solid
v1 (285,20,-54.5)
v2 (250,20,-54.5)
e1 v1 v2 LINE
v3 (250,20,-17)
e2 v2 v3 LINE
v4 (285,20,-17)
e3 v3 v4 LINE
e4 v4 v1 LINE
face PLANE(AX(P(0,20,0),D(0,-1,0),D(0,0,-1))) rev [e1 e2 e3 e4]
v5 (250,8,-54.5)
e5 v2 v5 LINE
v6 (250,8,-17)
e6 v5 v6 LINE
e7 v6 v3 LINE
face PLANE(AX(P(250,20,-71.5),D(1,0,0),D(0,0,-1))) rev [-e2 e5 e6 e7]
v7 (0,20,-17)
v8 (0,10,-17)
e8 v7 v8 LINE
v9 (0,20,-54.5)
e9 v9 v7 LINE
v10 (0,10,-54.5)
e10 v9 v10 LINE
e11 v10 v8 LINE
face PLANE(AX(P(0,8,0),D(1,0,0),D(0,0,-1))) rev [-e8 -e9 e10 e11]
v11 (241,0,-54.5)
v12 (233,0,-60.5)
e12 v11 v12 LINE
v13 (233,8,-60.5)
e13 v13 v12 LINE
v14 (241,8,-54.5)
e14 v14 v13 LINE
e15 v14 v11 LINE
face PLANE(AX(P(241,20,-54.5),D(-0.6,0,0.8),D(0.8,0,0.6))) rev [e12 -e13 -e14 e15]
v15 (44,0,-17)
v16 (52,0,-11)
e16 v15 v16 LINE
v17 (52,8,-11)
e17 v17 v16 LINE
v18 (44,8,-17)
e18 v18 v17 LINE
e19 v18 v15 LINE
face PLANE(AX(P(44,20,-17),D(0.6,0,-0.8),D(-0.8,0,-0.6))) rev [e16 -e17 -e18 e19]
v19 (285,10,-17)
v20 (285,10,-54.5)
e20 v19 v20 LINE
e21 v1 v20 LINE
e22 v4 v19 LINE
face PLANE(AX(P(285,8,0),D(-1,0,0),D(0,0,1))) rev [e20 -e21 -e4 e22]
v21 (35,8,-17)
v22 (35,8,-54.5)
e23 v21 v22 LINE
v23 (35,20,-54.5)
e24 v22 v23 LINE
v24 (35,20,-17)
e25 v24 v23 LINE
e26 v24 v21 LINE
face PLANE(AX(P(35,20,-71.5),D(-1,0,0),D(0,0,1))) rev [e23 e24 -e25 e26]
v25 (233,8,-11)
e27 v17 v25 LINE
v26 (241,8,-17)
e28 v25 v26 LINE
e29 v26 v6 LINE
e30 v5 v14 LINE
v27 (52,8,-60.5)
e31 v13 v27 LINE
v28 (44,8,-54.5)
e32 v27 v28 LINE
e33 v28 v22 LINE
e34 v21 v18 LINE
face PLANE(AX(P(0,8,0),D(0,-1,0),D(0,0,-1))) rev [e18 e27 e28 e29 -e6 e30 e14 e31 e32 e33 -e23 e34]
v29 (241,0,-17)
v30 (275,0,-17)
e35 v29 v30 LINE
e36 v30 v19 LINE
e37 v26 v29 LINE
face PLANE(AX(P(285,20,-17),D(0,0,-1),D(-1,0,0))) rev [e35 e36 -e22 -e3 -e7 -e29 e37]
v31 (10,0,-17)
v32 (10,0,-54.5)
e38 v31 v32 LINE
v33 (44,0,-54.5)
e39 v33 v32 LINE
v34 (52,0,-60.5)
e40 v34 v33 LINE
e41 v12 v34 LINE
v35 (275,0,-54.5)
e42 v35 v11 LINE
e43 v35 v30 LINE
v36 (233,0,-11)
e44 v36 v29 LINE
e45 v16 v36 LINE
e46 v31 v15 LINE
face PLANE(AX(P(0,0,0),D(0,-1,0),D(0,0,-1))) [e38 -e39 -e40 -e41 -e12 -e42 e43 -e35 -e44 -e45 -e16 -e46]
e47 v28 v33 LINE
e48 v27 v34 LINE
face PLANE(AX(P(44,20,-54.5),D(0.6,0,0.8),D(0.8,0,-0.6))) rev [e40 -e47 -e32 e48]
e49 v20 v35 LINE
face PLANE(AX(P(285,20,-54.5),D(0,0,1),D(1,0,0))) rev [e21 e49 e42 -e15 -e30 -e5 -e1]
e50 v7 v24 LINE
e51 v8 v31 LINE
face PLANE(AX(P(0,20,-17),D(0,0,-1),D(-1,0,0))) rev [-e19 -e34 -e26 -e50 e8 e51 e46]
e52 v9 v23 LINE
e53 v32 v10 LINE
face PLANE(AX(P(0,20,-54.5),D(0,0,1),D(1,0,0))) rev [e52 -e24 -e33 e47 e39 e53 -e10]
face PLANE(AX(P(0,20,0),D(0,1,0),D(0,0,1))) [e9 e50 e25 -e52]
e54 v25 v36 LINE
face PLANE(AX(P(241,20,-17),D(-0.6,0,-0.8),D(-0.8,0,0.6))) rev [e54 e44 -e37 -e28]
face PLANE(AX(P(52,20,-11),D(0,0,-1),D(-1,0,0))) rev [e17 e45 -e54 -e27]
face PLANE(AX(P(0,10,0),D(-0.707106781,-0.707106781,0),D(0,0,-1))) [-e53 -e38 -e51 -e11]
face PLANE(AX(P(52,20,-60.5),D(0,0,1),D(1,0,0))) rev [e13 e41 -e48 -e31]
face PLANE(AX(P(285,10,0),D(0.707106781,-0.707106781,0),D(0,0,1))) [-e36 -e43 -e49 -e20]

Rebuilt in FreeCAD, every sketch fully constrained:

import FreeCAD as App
import Part
import Sketcher
from FreeCAD import Vector
Q = App.Units.Quantity


def edges_at(feature, points):
    """Names of the edges that pass closest to the given points."""
    edges = feature.Shape.Edges
    near = lambda p: min(range(len(edges)), key=lambda i: edges[i].distToShape(Part.Vertex(*p))[0])
    return sorted({f"Edge{near(p) + 1}" for p in points})

doc = App.newDocument("Part")
body = doc.addObject("PartDesign::Body", "Body")

sketch1 = body.newObject("Sketcher::SketchObject", "Sketch")
sketch1.AttachmentSupport = (doc.getObject("XZ_Plane"), [""])
sketch1.MapMode = "FlatFace"
sketch1.addGeometry([
    Part.LineSegment(Vector(0, -72, 0), Vector(0, 0, 0)),
    Part.LineSegment(Vector(0, 0, 0), Vector(285, 0, 0)),
    Part.LineSegment(Vector(285, 0, 0), Vector(285, -72, 0)),
    Part.LineSegment(Vector(285, -72, 0), Vector(0, -72, 0)),
], False)
sketch1.addConstraint([
    Sketcher.Constraint("Coincident", 0, 2, 1, 1),
    Sketcher.Constraint("Coincident", 1, 2, 2, 1),
    Sketcher.Constraint("Coincident", 2, 2, 3, 1),
    Sketcher.Constraint("Coincident", 3, 2, 0, 1),
    Sketcher.Constraint("Vertical", 0),
    Sketcher.Constraint("Horizontal", 1),
    Sketcher.Constraint("Vertical", 2),
    Sketcher.Constraint("Horizontal", 3),
    Sketcher.Constraint("Coincident", 0, 2, -1, 1),
    Sketcher.Constraint("DistanceX", 1, 1, 1, 2, Q("285 mm")),
    Sketcher.Constraint("DistanceY", 0, 1, 0, 2, Q("71.5 mm")),
])
pad1 = body.newObject("PartDesign::Pad", "Pad")
pad1.Profile = sketch1
pad1.Length = 8
pad1.Reversed = True

sketch2 = body.newObject("Sketcher::SketchObject", "Sketch001")
sketch2.AttachmentSupport = (doc.getObject("XZ_Plane"), [""])
sketch2.MapMode = "FlatFace"
sketch2.AttachmentOffset = App.Placement(Vector(0, 0, -8), App.Rotation())
sketch2.addGeometry([
    Part.LineSegment(Vector(0, -72, 0), Vector(0, 0, 0)),
    Part.LineSegment(Vector(0, 0, 0), Vector(35, 0, 0)),
    Part.LineSegment(Vector(35, 0, 0), Vector(35, -72, 0)),
    Part.LineSegment(Vector(35, -72, 0), Vector(0, -72, 0)),
    Part.LineSegment(Vector(250, -72, 0), Vector(250, 0, 0)),
    Part.LineSegment(Vector(250, 0, 0), Vector(285, 0, 0)),
    Part.LineSegment(Vector(285, 0, 0), Vector(285, -72, 0)),
    Part.LineSegment(Vector(285, -72, 0), Vector(250, -72, 0)),
], False)
sketch2.addConstraint([
    Sketcher.Constraint("Coincident", 0, 2, 1, 1),
    Sketcher.Constraint("Coincident", 1, 2, 2, 1),
    Sketcher.Constraint("Coincident", 2, 2, 3, 1),
    Sketcher.Constraint("Coincident", 3, 2, 0, 1),
    Sketcher.Constraint("Coincident", 4, 2, 5, 1),
    Sketcher.Constraint("Coincident", 5, 2, 6, 1),
    Sketcher.Constraint("Coincident", 6, 2, 7, 1),
    Sketcher.Constraint("Coincident", 7, 2, 4, 1),
    Sketcher.Constraint("Vertical", 0),
    Sketcher.Constraint("Horizontal", 1),
    Sketcher.Constraint("Vertical", 2),
    Sketcher.Constraint("Horizontal", 3),
    Sketcher.Constraint("Vertical", 4),
    Sketcher.Constraint("Horizontal", 5),
    Sketcher.Constraint("Vertical", 6),
    Sketcher.Constraint("Horizontal", 7),
    Sketcher.Constraint("Coincident", 0, 2, -1, 1),
    Sketcher.Constraint("PointOnObject", 4, 2, -1),
    Sketcher.Constraint("Horizontal", 3, 2, 6, 2),
    Sketcher.Constraint("Equal", 3, 5),
    Sketcher.Constraint("DistanceX", 1, 1, 1, 2, Q("35 mm")),
    Sketcher.Constraint("DistanceY", 0, 1, 0, 2, Q("71.5 mm")),
    Sketcher.Constraint("DistanceX", -1, 1, 4, 2, Q("250 mm")),
])
pad2 = body.newObject("PartDesign::Pad", "Pad001")
pad2.Profile = sketch2
pad2.Length = 12
pad2.Reversed = True

sketch3 = body.newObject("Sketcher::SketchObject", "Sketch002")
sketch3.AttachmentSupport = (doc.getObject("XZ_Plane"), [""])
sketch3.MapMode = "FlatFace"
sketch3.addGeometry([
    Part.LineSegment(Vector(0, -17, 0), Vector(44, -17, 0)),
    Part.LineSegment(Vector(44, -17, 0), Vector(52, -11, 0)),
    Part.LineSegment(Vector(52, -11, 0), Vector(233, -11, 0)),
    Part.LineSegment(Vector(233, -11, 0), Vector(241, -17, 0)),
    Part.LineSegment(Vector(241, -17, 0), Vector(285, -17, 0)),
    Part.LineSegment(Vector(285, -17, 0), Vector(285, 0, 0)),
    Part.LineSegment(Vector(285, 0, 0), Vector(0, 0, 0)),
    Part.LineSegment(Vector(0, 0, 0), Vector(0, -17, 0)),
    Part.LineSegment(Vector(52, -60, 0), Vector(44, -54, 0)),
    Part.LineSegment(Vector(44, -54, 0), Vector(0, -54, 0)),
    Part.LineSegment(Vector(0, -54, 0), Vector(0, -72, 0)),
    Part.LineSegment(Vector(0, -72, 0), Vector(285, -72, 0)),
    Part.LineSegment(Vector(285, -72, 0), Vector(285, -54, 0)),
    Part.LineSegment(Vector(285, -54, 0), Vector(241, -54, 0)),
    Part.LineSegment(Vector(241, -54, 0), Vector(233, -60, 0)),
    Part.LineSegment(Vector(233, -60, 0), Vector(52, -60, 0)),
], False)
sketch3.addConstraint([
    Sketcher.Constraint("Coincident", 0, 2, 1, 1),
    Sketcher.Constraint("Coincident", 1, 2, 2, 1),
    Sketcher.Constraint("Coincident", 2, 2, 3, 1),
    Sketcher.Constraint("Coincident", 3, 2, 4, 1),
    Sketcher.Constraint("Coincident", 4, 2, 5, 1),
    Sketcher.Constraint("Coincident", 5, 2, 6, 1),
    Sketcher.Constraint("Coincident", 6, 2, 7, 1),
    Sketcher.Constraint("Coincident", 7, 2, 0, 1),
    Sketcher.Constraint("Coincident", 8, 2, 9, 1),
    Sketcher.Constraint("Coincident", 9, 2, 10, 1),
    Sketcher.Constraint("Coincident", 10, 2, 11, 1),
    Sketcher.Constraint("Coincident", 11, 2, 12, 1),
    Sketcher.Constraint("Coincident", 12, 2, 13, 1),
    Sketcher.Constraint("Coincident", 13, 2, 14, 1),
    Sketcher.Constraint("Coincident", 14, 2, 15, 1),
    Sketcher.Constraint("Coincident", 15, 2, 8, 1),
    Sketcher.Constraint("Horizontal", 0),
    Sketcher.Constraint("Horizontal", 2),
    Sketcher.Constraint("Horizontal", 4),
    Sketcher.Constraint("Vertical", 5),
    Sketcher.Constraint("Horizontal", 6),
    Sketcher.Constraint("Vertical", 7),
    Sketcher.Constraint("Horizontal", 9),
    Sketcher.Constraint("Vertical", 10),
    Sketcher.Constraint("Horizontal", 11),
    Sketcher.Constraint("Vertical", 12),
    Sketcher.Constraint("Horizontal", 13),
    Sketcher.Constraint("Horizontal", 15),
    Sketcher.Constraint("Coincident", 6, 2, -1, 1),
    Sketcher.Constraint("PointOnObject", 9, 2, -2),
    Sketcher.Constraint("Parallel", 3, 8),
    Sketcher.Constraint("Parallel", 1, 14),
    Sketcher.Constraint("Horizontal", 0, 2, 3, 2),
    Sketcher.Constraint("Horizontal", 9, 2, 12, 2),
    Sketcher.Constraint("Vertical", 0, 2, 8, 2),
    Sketcher.Constraint("Vertical", 5, 2, 11, 2),
    Sketcher.Constraint("Vertical", 3, 2, 13, 2),
    Sketcher.Constraint("Vertical", 2, 2, 14, 2),
    Sketcher.Constraint("Vertical", 1, 2, 15, 2),
    Sketcher.Constraint("Equal", 0, 4),
    Sketcher.Constraint("Equal", 7, 10),
    Sketcher.Constraint("DistanceX", 0, 1, 0, 2, Q("44 mm")),
    Sketcher.Constraint("DistanceX", 2, 1, 2, 2, Q("181 mm")),
    Sketcher.Constraint("DistanceX", 6, 2, 6, 1, Q("285 mm")),
    Sketcher.Constraint("DistanceY", 5, 1, 5, 2, Q("17 mm")),
    Sketcher.Constraint("Distance", 1, Q("10 mm")),
    Sketcher.Constraint("DistanceY", 8, 2, -1, 1, Q("54.5 mm")),
])
pocket1 = body.newObject("PartDesign::Pocket", "Pocket")
pocket1.Profile = sketch3
pocket1.Type = "ThroughAll"
doc.recompute()

chamfer = body.newObject("PartDesign::Chamfer", "Chamfer")
chamfer.Base = (pocket1, edges_at(pocket1, [(0, 0, -35.75), (285, 0, -35.75)]))
chamfer.Size = 10

doc.recompute()
